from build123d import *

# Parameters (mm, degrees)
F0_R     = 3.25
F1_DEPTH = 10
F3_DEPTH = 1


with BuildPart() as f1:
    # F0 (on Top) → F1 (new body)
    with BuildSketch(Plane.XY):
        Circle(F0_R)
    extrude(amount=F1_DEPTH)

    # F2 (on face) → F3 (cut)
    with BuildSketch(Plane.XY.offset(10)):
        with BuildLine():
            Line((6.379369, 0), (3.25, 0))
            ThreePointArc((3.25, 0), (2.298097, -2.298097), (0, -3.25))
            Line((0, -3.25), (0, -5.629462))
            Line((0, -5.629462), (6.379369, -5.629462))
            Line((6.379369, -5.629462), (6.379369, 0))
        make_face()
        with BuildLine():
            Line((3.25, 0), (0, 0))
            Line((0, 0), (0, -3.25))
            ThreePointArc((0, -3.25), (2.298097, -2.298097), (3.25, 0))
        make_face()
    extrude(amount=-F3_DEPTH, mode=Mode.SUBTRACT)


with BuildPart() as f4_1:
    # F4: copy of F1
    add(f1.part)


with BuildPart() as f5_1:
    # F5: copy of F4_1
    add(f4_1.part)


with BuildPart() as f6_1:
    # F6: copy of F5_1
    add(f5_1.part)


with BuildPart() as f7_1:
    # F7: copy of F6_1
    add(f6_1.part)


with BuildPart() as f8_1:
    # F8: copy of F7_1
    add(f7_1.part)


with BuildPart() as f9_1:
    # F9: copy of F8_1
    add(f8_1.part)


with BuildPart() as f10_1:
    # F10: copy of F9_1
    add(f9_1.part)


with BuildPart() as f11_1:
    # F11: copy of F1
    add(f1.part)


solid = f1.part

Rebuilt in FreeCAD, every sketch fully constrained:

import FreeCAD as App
import Part
import Sketcher
from FreeCAD import Vector
Q = App.Units.Quantity

doc = App.newDocument("Part")
body = doc.addObject("PartDesign::Body", "Body")

# Sketch on XY plane
sketch1 = body.newObject("Sketcher::SketchObject", "Sketch")
sketch1.AttachmentSupport = (doc.getObject("XY_Plane"), [""])
sketch1.MapMode = "FlatFace"
sketch1.addGeometry(Part.Circle(Vector(0, 0, 0), Vector(0, 0, 1), 3.2), False)
sketch1.addConstraint([
    Sketcher.Constraint("Coincident", 0, 3, -1, 1),
    Sketcher.Constraint("Diameter", 0, Q("6.5 mm")),
])
pad1 = body.newObject("PartDesign::Pad", "Pad")
pad1.Profile = sketch1
pad1.Length = 10

# Sketch on XY plane
sketch2 = body.newObject("Sketcher::SketchObject", "Sketch001")
sketch2.AttachmentSupport = (doc.getObject("XY_Plane"), [""])
sketch2.MapMode = "FlatFace"
sketch2.AttachmentOffset = App.Placement(Vector(0, 0, 10), App.Rotation())
sketch2.addGeometry([
    Part.LineSegment(Vector(6, 0, 0), Vector(0, 0, 0)),
    Part.LineSegment(Vector(0, 0, 0), Vector(0, -6, 0)),
    Part.LineSegment(Vector(0, -6, 0), Vector(6, -6, 0)),
    Part.LineSegment(Vector(6, -6, 0), Vector(6, 0, 0)),
], False)
sketch2.addConstraint([
    Sketcher.Constraint("Coincident", 0, 2, 1, 1),
    Sketcher.Constraint("Coincident", 1, 2, 2, 1),
    Sketcher.Constraint("Coincident", 2, 2, 3, 1),
    Sketcher.Constraint("Coincident", 3, 2, 0, 1),
    Sketcher.Constraint("Horizontal", 0),
    Sketcher.Constraint("Vertical", 1),
    Sketcher.Constraint("Horizontal", 2),
    Sketcher.Constraint("Vertical", 3),
    Sketcher.Constraint("Coincident", 0, 2, -1, 1),
    Sketcher.Constraint("DistanceX", 0, 2, 0, 1, Q("6.379369 mm")),
    Sketcher.Constraint("DistanceY", 1, 2, 1, 1, Q("5.629462 mm")),
])
pocket1 = body.newObject("PartDesign::Pocket", "Pocket")
pocket1.Profile = sketch2
pocket1.Length = 1
body2 = doc.addObject("PartDesign::Body", "Body001")
doc.recompute()

body2.BaseFeature = body
doc.recompute()
body3 = doc.addObject("PartDesign::Body", "Body002")
doc.recompute()

body3.BaseFeature = body
doc.recompute()
body.Visibility = False
body2.Visibility = False

doc.recompute()
